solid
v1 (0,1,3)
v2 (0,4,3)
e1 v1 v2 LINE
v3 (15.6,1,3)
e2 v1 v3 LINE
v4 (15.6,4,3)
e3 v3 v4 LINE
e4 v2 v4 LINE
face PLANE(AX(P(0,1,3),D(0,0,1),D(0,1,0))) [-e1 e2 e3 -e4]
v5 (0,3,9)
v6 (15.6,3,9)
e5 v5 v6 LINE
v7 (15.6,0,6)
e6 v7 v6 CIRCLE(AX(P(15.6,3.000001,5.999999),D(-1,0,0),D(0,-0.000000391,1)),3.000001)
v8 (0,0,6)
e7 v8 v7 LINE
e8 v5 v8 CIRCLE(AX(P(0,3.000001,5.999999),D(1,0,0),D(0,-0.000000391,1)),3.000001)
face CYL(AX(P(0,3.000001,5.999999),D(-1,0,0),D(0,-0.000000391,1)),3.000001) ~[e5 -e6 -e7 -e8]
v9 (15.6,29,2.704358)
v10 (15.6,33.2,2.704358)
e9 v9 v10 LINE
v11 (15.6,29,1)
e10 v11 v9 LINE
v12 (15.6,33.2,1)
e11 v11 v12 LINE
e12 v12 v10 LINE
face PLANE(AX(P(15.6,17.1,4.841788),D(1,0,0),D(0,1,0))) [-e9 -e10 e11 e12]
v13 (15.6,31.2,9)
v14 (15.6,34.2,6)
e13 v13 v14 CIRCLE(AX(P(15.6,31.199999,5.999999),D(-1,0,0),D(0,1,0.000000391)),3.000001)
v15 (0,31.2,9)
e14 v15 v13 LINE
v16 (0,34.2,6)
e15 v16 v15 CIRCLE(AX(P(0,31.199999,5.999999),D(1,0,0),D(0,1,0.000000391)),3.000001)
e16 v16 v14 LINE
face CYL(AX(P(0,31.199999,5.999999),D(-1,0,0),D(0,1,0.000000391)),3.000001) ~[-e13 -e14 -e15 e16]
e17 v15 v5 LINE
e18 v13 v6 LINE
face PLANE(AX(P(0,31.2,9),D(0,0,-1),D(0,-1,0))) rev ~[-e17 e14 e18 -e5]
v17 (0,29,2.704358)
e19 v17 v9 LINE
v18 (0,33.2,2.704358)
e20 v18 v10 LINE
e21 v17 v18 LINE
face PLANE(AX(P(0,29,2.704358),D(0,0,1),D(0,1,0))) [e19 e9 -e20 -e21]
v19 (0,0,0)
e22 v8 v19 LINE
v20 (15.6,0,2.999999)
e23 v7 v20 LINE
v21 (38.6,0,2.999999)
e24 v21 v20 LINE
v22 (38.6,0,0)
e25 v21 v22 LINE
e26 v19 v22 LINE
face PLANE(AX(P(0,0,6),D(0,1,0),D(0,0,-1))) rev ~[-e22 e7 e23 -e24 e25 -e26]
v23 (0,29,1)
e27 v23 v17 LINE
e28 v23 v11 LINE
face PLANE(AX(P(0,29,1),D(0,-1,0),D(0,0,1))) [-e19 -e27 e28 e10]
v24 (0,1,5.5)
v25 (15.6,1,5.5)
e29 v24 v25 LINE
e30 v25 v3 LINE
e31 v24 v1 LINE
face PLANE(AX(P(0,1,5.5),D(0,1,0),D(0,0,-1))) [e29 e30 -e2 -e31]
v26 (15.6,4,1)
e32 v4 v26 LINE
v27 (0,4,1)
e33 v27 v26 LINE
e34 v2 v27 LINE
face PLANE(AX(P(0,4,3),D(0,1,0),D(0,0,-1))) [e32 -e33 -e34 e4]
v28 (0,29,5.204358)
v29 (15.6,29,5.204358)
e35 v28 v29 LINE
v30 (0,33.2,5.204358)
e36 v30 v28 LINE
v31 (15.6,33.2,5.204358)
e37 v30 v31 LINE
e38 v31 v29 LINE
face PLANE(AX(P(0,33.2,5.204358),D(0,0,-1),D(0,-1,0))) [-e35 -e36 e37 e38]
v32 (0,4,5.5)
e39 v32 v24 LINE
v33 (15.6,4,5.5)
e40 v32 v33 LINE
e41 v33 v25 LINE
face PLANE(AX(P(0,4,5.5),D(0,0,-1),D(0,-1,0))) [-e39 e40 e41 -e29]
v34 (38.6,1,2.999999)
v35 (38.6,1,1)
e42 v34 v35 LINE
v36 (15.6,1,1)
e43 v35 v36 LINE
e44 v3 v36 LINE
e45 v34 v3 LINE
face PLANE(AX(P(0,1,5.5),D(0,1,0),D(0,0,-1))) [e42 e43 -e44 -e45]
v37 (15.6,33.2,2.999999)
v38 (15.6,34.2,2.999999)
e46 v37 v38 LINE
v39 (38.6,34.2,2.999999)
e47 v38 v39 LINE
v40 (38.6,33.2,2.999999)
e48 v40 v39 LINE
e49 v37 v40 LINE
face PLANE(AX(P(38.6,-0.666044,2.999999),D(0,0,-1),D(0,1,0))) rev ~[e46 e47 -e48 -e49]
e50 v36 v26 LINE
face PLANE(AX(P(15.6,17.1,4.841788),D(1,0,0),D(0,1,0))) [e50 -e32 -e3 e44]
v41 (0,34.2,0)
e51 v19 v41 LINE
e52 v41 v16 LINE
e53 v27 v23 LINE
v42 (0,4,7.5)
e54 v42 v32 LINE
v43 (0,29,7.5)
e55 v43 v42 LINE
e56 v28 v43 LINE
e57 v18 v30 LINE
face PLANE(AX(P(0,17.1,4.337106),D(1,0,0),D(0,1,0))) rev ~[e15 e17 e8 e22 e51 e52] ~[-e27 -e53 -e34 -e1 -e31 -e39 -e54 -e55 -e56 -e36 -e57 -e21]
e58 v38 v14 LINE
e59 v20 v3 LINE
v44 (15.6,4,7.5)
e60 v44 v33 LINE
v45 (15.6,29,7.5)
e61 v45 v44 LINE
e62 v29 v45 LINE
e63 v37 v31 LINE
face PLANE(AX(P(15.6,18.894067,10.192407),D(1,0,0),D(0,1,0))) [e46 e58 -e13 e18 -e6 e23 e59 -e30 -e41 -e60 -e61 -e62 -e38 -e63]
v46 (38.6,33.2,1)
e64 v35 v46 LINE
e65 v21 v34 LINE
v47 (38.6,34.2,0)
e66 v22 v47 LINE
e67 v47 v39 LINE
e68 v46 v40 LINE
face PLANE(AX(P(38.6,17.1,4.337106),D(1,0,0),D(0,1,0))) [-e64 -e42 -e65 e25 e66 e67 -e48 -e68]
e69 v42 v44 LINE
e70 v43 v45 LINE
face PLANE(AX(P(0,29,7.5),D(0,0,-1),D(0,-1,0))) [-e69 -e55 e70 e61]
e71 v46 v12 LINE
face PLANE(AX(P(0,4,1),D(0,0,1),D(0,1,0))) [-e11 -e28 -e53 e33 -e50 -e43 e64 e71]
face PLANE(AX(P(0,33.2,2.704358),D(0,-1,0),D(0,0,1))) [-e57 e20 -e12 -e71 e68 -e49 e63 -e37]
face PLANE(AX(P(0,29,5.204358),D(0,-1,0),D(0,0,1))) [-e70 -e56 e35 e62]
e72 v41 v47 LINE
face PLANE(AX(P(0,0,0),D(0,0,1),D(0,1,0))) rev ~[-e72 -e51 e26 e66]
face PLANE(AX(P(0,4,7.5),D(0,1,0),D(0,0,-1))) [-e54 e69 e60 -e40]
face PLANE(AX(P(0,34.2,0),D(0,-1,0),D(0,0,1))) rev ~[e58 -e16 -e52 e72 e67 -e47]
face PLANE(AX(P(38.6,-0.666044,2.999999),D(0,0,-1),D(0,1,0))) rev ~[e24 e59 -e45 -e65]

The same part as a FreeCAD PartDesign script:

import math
import FreeCAD as App
import Part
import Sketcher

doc = App.newDocument("Part")
params = doc.addObject("Spreadsheet::Sheet", "Params")
for row, (alias, value) in enumerate([
    ("sketch1_radius", "3.000001 mm"),
    ("sketch1_height", "6 mm"),
    ("sketch1_width", "34.2 mm"),
    ("pad1_length", "38.6 mm"),
    ("sketch2_width", "3 mm"),
    ("sketch2_width2", "25 mm"),
    ("sketch2_height", "2 mm"),
    ("sketch2_width3", "4.2 mm"),
    ("sketch2_height2", "2.5 mm"),
    ("pocket1_length", "16 mm"),
    ("sketch3_radius", "3.000001 mm"),
    ("sketch3_height", "5 mm"),
    ("sketch3_width", "32.2 mm"),
    ("pocket2_length", "23 mm"),
    ("pocket3_length", "23 mm"),
], start=1):
    params.set(f"A{row}", alias)
    params.set(f"B{row}", "=" + value)
    params.setAlias(f"B{row}", alias)

body = doc.addObject("PartDesign::Body", "Body")

# Sketch on YZ plane
sketch1 = body.newObject("Sketcher::SketchObject", "Sketch")
sketch1.AttachmentSupport = (doc.getObject("YZ_Plane"), [""])
sketch1.MapMode = "FlatFace"
sketch1.addGeometry(Part.LineSegment(App.Vector(0, 0, 0), App.Vector(34.2, 0, 0)), False)
sketch1.addGeometry(Part.LineSegment(App.Vector(34.2, 0, 0), App.Vector(34.2, 6, 0)), False)
sketch1.addGeometry(Part.ArcOfCircle(Part.Circle(App.Vector(31.2, 6, 0), App.Vector(0, 0, 1), 3), math.radians(0), math.radians(90)), False)
sketch1.addGeometry(Part.LineSegment(App.Vector(31.2, 9, 0), App.Vector(3, 9, 0)), False)
sketch1.addGeometry(Part.ArcOfCircle(Part.Circle(App.Vector(3, 6, 0), App.Vector(0, 0, 1), 3), math.radians(90), math.radians(180)), False)
sketch1.addGeometry(Part.LineSegment(App.Vector(0, 6, 0), App.Vector(0, 0, 0)), False)
sketch1.addConstraint(Sketcher.Constraint("Coincident", 0, 2, 1, 1))
sketch1.addConstraint(Sketcher.Constraint("Tangent", 1, 2, 2, 1))
sketch1.addConstraint(Sketcher.Constraint("Tangent", 2, 2, 3, 1))
sketch1.addConstraint(Sketcher.Constraint("Tangent", 3, 2, 4, 1))
sketch1.addConstraint(Sketcher.Constraint("Tangent", 4, 2, 5, 1))
sketch1.addConstraint(Sketcher.Constraint("Coincident", 5, 2, 0, 1))
sketch1.addConstraint(Sketcher.Constraint("Horizontal", 0))
sketch1.addConstraint(Sketcher.Constraint("Vertical", 1))
sketch1.addConstraint(Sketcher.Constraint("Horizontal", 3))
sketch1.addConstraint(Sketcher.Constraint("Vertical", 5))
sketch1.addConstraint(Sketcher.Constraint("Coincident", 5, 2, -1, 1))
sketch1.addConstraint(Sketcher.Constraint("Equal", 2, 4))
sketch1.addConstraint(Sketcher.Constraint("Radius", 2, 3.000001))
sketch1.addConstraint(Sketcher.Constraint("DistanceY", 1, 1, 1, 2, 6.0))
sketch1.addConstraint(Sketcher.Constraint("DistanceX", 0, 1, 0, 2, 34.2))
sketch1.setExpression("Constraints[12]", "Params.sketch1_radius")
sketch1.setExpression("Constraints[13]", "Params.sketch1_height")
sketch1.setExpression("Constraints[14]", "Params.sketch1_width")
pad1 = body.newObject("PartDesign::Pad", "Pad")
pad1.Profile = sketch1
pad1.setExpression("Length", "Params.pad1_length")

# Sketch on YZ plane
sketch2 = body.newObject("Sketcher::SketchObject", "Sketch001")
sketch2.AttachmentSupport = (doc.getObject("YZ_Plane"), [""])
sketch2.MapMode = "FlatFace"
sketch2.addGeometry(Part.LineSegment(App.Vector(4, 1, 0), App.Vector(4, 3, 0)), False)
sketch2.addGeometry(Part.LineSegment(App.Vector(4, 3, 0), App.Vector(1, 3, 0)), False)
sketch2.addGeometry(Part.LineSegment(App.Vector(1, 3, 0), App.Vector(1, 5.5, 0)), False)
sketch2.addGeometry(Part.LineSegment(App.Vector(1, 5.5, 0), App.Vector(4, 5.5, 0)), False)
sketch2.addGeometry(Part.LineSegment(App.Vector(4, 5.5, 0), App.Vector(4, 7.5, 0)), False)
sketch2.addGeometry(Part.LineSegment(App.Vector(4, 7.5, 0), App.Vector(29, 7.5, 0)), False)
sketch2.addGeometry(Part.LineSegment(App.Vector(29, 7.5, 0), App.Vector(29, 5.2, 0)), False)
sketch2.addGeometry(Part.LineSegment(App.Vector(29, 5.2, 0), App.Vector(33.2, 5.2, 0)), False)
sketch2.addGeometry(Part.LineSegment(App.Vector(33.2, 5.2, 0), App.Vector(33.2, 2.7, 0)), False)
sketch2.addGeometry(Part.LineSegment(App.Vector(33.2, 2.7, 0), App.Vector(29, 2.7, 0)), False)
sketch2.addGeometry(Part.LineSegment(App.Vector(29, 2.7, 0), App.Vector(29, 1, 0)), False)
sketch2.addGeometry(Part.LineSegment(App.Vector(29, 1, 0), App.Vector(4, 1, 0)), False)
sketch2.addConstraint(Sketcher.Constraint("Coincident", 0, 2, 1, 1))
sketch2.addConstraint(Sketcher.Constraint("Coincident", 1, 2, 2, 1))
sketch2.addConstraint(Sketcher.Constraint("Coincident", 2, 2, 3, 1))
sketch2.addConstraint(Sketcher.Constraint("Coincident", 3, 2, 4, 1))
sketch2.addConstraint(Sketcher.Constraint("Coincident", 4, 2, 5, 1))
sketch2.addConstraint(Sketcher.Constraint("Coincident", 5, 2, 6, 1))
sketch2.addConstraint(Sketcher.Constraint("Coincident", 6, 2, 7, 1))
sketch2.addConstraint(Sketcher.Constraint("Coincident", 7, 2, 8, 1))
sketch2.addConstraint(Sketcher.Constraint("Coincident", 8, 2, 9, 1))
sketch2.addConstraint(Sketcher.Constraint("Coincident", 9, 2, 10, 1))
sketch2.addConstraint(Sketcher.Constraint("Coincident", 10, 2, 11, 1))
sketch2.addConstraint(Sketcher.Constraint("Coincident", 11, 2, 0, 1))
sketch2.addConstraint(Sketcher.Constraint("Vertical", 0))
sketch2.addConstraint(Sketcher.Constraint("Horizontal", 1))
sketch2.addConstraint(Sketcher.Constraint("Vertical", 2))
sketch2.addConstraint(Sketcher.Constraint("Horizontal", 3))
sketch2.addConstraint(Sketcher.Constraint("Vertical", 4))
sketch2.addConstraint(Sketcher.Constraint("Horizontal", 5))
sketch2.addConstraint(Sketcher.Constraint("Vertical", 6))
sketch2.addConstraint(Sketcher.Constraint("Horizontal", 7))
sketch2.addConstraint(Sketcher.Constraint("Vertical", 8))
sketch2.addConstraint(Sketcher.Constraint("Horizontal", 9))
sketch2.addConstraint(Sketcher.Constraint("Vertical", 10))
sketch2.addConstraint(Sketcher.Constraint("Horizontal", 11))
sketch2.addConstraint(Sketcher.Constraint("Vertical", 0, 2, 3, 2))
sketch2.addConstraint(Sketcher.Constraint("Vertical", 6, 2, 9, 2))
sketch2.addConstraint(Sketcher.Constraint("Equal", 0, 4))
sketch2.addConstraint(Sketcher.Constraint("Equal", 2, 8))
sketch2.addConstraint(Sketcher.Constraint("DistanceX", 1, 2, 1, 1, 3.0))
sketch2.addConstraint(Sketcher.Constraint("DistanceX", 5, 1, 5, 2, 25.0))
sketch2.addConstraint(Sketcher.Constraint("DistanceY", 0, 1, 0, 2, 2.0))
sketch2.addConstraint(Sketcher.Constraint("DistanceX", 7, 1, 7, 2, 4.2))
sketch2.addConstraint(Sketcher.Constraint("DistanceY", 2, 1, 2, 2, 2.5))
sketch2.addConstraint(Sketcher.Constraint("DistanceX", -1, 1, 0, 2, 4.0))
sketch2.addConstraint(Sketcher.Constraint("DistanceY", -1, 1, 0, 2, 3.0))
sketch2.addConstraint(Sketcher.Constraint("DistanceY", 6, 2, 6, 1, 2.295642))
sketch2.setExpression("Constraints[28]", "Params.sketch2_width")
sketch2.setExpression("Constraints[29]", "Params.sketch2_width2")
sketch2.setExpression("Constraints[30]", "Params.sketch2_height")
sketch2.setExpression("Constraints[31]", "Params.sketch2_width3")
sketch2.setExpression("Constraints[32]", "Params.sketch2_height2")
pocket1 = body.newObject("PartDesign::Pocket", "Pocket")
pocket1.Profile = sketch2
pocket1.setExpression("Length", "Params.pocket1_length")
pocket1.Reversed = True

# Sketch on YZ plane
sketch3 = body.newObject("Sketcher::SketchObject", "Sketch002")
sketch3.AttachmentSupport = (doc.getObject("YZ_Plane"), [""])
sketch3.MapMode = "FlatFace"
sketch3.AttachmentOffset = App.Placement(App.Vector(0, 0, 38.6), App.Rotation())
sketch3.addGeometry(Part.LineSegment(App.Vector(1, 1, 0), App.Vector(33.2, 1, 0)), False)
sketch3.addGeometry(Part.LineSegment(App.Vector(33.2, 1, 0), App.Vector(33.2, 6, 0)), False)
sketch3.addGeometry(Part.ArcOfCircle(Part.Circle(App.Vector(30.2, 6, 0), App.Vector(0, 0, 1), 3), math.radians(0), math.radians(90)), False)
sketch3.addGeometry(Part.LineSegment(App.Vector(30.2, 9, 0), App.Vector(4, 9, 0)), False)
sketch3.addGeometry(Part.ArcOfCircle(Part.Circle(App.Vector(4, 6, 0), App.Vector(0, 0, 1), 3), math.radians(90), math.radians(180)), False)
sketch3.addGeometry(Part.LineSegment(App.Vector(1, 6, 0), App.Vector(1, 1, 0)), False)
sketch3.addConstraint(Sketcher.Constraint("Coincident", 0, 2, 1, 1))
sketch3.addConstraint(Sketcher.Constraint("Tangent", 1, 2, 2, 1))
sketch3.addConstraint(Sketcher.Constraint("Tangent", 2, 2, 3, 1))
sketch3.addConstraint(Sketcher.Constraint("Tangent", 3, 2, 4, 1))
sketch3.addConstraint(Sketcher.Constraint("Tangent", 4, 2, 5, 1))
sketch3.addConstraint(Sketcher.Constraint("Coincident", 5, 2, 0, 1))
sketch3.addConstraint(Sketcher.Constraint("Horizontal", 0))
sketch3.addConstraint(Sketcher.Constraint("Vertical", 1))
sketch3.addConstraint(Sketcher.Constraint("Horizontal", 3))
sketch3.addConstraint(Sketcher.Constraint("Vertical", 5))
sketch3.addConstraint(Sketcher.Constraint("Equal", 2, 4))
sketch3.addConstraint(Sketcher.Constraint("Radius", 2, 3.000001))
sketch3.addConstraint(Sketcher.Constraint("DistanceY", 1, 1, 1, 2, 5.0))
sketch3.addConstraint(Sketcher.Constraint("DistanceX", 0, 1, 0, 2, 32.2))
sketch3.addConstraint(Sketcher.Constraint("DistanceY", -1, 1, 2, 3, 5.999999))
sketch3.addConstraint(Sketcher.Constraint("DistanceX", -1, 1, 4, 3, 4.000001))
sketch3.setExpression("Constraints[11]", "Params.sketch3_radius")
sketch3.setExpression("Constraints[12]", "Params.sketch3_height")
sketch3.setExpression("Constraints[13]", "Params.sketch3_width")
pocket2 = body.newObject("PartDesign::Pocket", "Pocket001")
pocket2.Profile = sketch3
pocket2.setExpression("Length", "Params.pocket2_length")

# Sketch on YZ plane
sketch4 = body.newObject("Sketcher::SketchObject", "Sketch003")
sketch4.AttachmentSupport = (doc.getObject("YZ_Plane"), [""])
sketch4.MapMode = "FlatFace"
sketch4.AttachmentOffset = App.Placement(App.Vector(0, 0, 38.6), App.Rotation())
sketch4.addGeometry(Part.LineSegment(App.Vector(-1, 17, 0), App.Vector(-1, 3, 0)), False)
sketch4.addGeometry(Part.LineSegment(App.Vector(-1, 3, 0), App.Vector(38, 3, 0)), False)
sketch4.addGeometry(Part.LineSegment(App.Vector(38, 3, 0), App.Vector(38, 17, 0)), False)
sketch4.addGeometry(Part.LineSegment(App.Vector(38, 17, 0), App.Vector(-1, 17, 0)), False)
sketch4.addConstraint(Sketcher.Constraint("Coincident", 0, 2, 1, 1))
sketch4.addConstraint(Sketcher.Constraint("Coincident", 1, 2, 2, 1))
sketch4.addConstraint(Sketcher.Constraint("Coincident", 2, 2, 3, 1))
sketch4.addConstraint(Sketcher.Constraint("Coincident", 3, 2, 0, 1))
sketch4.addConstraint(Sketcher.Constraint("Vertical", 0))
sketch4.addConstraint(Sketcher.Constraint("Horizontal", 1))
sketch4.addConstraint(Sketcher.Constraint("Vertical", 2))
sketch4.addConstraint(Sketcher.Constraint("Horizontal", 3))
sketch4.addConstraint(Sketcher.Constraint("DistanceY", -1, 1, 0, 2, 2.999999))
sketch4.addConstraint(Sketcher.Constraint("DistanceX", 1, 1, 1, 2, 39.120222))
sketch4.addConstraint(Sketcher.Constraint("DistanceY", 0, 2, 0, 1, 14.384815))
sketch4.addConstraint(Sketcher.Constraint("DistanceX", 0, 2, -1, 1, 0.666044))
pocket3 = body.newObject("PartDesign::Pocket", "Pocket002")
pocket3.Profile = sketch4
pocket3.setExpression("Length", "Params.pocket3_length")

doc.recompute()
